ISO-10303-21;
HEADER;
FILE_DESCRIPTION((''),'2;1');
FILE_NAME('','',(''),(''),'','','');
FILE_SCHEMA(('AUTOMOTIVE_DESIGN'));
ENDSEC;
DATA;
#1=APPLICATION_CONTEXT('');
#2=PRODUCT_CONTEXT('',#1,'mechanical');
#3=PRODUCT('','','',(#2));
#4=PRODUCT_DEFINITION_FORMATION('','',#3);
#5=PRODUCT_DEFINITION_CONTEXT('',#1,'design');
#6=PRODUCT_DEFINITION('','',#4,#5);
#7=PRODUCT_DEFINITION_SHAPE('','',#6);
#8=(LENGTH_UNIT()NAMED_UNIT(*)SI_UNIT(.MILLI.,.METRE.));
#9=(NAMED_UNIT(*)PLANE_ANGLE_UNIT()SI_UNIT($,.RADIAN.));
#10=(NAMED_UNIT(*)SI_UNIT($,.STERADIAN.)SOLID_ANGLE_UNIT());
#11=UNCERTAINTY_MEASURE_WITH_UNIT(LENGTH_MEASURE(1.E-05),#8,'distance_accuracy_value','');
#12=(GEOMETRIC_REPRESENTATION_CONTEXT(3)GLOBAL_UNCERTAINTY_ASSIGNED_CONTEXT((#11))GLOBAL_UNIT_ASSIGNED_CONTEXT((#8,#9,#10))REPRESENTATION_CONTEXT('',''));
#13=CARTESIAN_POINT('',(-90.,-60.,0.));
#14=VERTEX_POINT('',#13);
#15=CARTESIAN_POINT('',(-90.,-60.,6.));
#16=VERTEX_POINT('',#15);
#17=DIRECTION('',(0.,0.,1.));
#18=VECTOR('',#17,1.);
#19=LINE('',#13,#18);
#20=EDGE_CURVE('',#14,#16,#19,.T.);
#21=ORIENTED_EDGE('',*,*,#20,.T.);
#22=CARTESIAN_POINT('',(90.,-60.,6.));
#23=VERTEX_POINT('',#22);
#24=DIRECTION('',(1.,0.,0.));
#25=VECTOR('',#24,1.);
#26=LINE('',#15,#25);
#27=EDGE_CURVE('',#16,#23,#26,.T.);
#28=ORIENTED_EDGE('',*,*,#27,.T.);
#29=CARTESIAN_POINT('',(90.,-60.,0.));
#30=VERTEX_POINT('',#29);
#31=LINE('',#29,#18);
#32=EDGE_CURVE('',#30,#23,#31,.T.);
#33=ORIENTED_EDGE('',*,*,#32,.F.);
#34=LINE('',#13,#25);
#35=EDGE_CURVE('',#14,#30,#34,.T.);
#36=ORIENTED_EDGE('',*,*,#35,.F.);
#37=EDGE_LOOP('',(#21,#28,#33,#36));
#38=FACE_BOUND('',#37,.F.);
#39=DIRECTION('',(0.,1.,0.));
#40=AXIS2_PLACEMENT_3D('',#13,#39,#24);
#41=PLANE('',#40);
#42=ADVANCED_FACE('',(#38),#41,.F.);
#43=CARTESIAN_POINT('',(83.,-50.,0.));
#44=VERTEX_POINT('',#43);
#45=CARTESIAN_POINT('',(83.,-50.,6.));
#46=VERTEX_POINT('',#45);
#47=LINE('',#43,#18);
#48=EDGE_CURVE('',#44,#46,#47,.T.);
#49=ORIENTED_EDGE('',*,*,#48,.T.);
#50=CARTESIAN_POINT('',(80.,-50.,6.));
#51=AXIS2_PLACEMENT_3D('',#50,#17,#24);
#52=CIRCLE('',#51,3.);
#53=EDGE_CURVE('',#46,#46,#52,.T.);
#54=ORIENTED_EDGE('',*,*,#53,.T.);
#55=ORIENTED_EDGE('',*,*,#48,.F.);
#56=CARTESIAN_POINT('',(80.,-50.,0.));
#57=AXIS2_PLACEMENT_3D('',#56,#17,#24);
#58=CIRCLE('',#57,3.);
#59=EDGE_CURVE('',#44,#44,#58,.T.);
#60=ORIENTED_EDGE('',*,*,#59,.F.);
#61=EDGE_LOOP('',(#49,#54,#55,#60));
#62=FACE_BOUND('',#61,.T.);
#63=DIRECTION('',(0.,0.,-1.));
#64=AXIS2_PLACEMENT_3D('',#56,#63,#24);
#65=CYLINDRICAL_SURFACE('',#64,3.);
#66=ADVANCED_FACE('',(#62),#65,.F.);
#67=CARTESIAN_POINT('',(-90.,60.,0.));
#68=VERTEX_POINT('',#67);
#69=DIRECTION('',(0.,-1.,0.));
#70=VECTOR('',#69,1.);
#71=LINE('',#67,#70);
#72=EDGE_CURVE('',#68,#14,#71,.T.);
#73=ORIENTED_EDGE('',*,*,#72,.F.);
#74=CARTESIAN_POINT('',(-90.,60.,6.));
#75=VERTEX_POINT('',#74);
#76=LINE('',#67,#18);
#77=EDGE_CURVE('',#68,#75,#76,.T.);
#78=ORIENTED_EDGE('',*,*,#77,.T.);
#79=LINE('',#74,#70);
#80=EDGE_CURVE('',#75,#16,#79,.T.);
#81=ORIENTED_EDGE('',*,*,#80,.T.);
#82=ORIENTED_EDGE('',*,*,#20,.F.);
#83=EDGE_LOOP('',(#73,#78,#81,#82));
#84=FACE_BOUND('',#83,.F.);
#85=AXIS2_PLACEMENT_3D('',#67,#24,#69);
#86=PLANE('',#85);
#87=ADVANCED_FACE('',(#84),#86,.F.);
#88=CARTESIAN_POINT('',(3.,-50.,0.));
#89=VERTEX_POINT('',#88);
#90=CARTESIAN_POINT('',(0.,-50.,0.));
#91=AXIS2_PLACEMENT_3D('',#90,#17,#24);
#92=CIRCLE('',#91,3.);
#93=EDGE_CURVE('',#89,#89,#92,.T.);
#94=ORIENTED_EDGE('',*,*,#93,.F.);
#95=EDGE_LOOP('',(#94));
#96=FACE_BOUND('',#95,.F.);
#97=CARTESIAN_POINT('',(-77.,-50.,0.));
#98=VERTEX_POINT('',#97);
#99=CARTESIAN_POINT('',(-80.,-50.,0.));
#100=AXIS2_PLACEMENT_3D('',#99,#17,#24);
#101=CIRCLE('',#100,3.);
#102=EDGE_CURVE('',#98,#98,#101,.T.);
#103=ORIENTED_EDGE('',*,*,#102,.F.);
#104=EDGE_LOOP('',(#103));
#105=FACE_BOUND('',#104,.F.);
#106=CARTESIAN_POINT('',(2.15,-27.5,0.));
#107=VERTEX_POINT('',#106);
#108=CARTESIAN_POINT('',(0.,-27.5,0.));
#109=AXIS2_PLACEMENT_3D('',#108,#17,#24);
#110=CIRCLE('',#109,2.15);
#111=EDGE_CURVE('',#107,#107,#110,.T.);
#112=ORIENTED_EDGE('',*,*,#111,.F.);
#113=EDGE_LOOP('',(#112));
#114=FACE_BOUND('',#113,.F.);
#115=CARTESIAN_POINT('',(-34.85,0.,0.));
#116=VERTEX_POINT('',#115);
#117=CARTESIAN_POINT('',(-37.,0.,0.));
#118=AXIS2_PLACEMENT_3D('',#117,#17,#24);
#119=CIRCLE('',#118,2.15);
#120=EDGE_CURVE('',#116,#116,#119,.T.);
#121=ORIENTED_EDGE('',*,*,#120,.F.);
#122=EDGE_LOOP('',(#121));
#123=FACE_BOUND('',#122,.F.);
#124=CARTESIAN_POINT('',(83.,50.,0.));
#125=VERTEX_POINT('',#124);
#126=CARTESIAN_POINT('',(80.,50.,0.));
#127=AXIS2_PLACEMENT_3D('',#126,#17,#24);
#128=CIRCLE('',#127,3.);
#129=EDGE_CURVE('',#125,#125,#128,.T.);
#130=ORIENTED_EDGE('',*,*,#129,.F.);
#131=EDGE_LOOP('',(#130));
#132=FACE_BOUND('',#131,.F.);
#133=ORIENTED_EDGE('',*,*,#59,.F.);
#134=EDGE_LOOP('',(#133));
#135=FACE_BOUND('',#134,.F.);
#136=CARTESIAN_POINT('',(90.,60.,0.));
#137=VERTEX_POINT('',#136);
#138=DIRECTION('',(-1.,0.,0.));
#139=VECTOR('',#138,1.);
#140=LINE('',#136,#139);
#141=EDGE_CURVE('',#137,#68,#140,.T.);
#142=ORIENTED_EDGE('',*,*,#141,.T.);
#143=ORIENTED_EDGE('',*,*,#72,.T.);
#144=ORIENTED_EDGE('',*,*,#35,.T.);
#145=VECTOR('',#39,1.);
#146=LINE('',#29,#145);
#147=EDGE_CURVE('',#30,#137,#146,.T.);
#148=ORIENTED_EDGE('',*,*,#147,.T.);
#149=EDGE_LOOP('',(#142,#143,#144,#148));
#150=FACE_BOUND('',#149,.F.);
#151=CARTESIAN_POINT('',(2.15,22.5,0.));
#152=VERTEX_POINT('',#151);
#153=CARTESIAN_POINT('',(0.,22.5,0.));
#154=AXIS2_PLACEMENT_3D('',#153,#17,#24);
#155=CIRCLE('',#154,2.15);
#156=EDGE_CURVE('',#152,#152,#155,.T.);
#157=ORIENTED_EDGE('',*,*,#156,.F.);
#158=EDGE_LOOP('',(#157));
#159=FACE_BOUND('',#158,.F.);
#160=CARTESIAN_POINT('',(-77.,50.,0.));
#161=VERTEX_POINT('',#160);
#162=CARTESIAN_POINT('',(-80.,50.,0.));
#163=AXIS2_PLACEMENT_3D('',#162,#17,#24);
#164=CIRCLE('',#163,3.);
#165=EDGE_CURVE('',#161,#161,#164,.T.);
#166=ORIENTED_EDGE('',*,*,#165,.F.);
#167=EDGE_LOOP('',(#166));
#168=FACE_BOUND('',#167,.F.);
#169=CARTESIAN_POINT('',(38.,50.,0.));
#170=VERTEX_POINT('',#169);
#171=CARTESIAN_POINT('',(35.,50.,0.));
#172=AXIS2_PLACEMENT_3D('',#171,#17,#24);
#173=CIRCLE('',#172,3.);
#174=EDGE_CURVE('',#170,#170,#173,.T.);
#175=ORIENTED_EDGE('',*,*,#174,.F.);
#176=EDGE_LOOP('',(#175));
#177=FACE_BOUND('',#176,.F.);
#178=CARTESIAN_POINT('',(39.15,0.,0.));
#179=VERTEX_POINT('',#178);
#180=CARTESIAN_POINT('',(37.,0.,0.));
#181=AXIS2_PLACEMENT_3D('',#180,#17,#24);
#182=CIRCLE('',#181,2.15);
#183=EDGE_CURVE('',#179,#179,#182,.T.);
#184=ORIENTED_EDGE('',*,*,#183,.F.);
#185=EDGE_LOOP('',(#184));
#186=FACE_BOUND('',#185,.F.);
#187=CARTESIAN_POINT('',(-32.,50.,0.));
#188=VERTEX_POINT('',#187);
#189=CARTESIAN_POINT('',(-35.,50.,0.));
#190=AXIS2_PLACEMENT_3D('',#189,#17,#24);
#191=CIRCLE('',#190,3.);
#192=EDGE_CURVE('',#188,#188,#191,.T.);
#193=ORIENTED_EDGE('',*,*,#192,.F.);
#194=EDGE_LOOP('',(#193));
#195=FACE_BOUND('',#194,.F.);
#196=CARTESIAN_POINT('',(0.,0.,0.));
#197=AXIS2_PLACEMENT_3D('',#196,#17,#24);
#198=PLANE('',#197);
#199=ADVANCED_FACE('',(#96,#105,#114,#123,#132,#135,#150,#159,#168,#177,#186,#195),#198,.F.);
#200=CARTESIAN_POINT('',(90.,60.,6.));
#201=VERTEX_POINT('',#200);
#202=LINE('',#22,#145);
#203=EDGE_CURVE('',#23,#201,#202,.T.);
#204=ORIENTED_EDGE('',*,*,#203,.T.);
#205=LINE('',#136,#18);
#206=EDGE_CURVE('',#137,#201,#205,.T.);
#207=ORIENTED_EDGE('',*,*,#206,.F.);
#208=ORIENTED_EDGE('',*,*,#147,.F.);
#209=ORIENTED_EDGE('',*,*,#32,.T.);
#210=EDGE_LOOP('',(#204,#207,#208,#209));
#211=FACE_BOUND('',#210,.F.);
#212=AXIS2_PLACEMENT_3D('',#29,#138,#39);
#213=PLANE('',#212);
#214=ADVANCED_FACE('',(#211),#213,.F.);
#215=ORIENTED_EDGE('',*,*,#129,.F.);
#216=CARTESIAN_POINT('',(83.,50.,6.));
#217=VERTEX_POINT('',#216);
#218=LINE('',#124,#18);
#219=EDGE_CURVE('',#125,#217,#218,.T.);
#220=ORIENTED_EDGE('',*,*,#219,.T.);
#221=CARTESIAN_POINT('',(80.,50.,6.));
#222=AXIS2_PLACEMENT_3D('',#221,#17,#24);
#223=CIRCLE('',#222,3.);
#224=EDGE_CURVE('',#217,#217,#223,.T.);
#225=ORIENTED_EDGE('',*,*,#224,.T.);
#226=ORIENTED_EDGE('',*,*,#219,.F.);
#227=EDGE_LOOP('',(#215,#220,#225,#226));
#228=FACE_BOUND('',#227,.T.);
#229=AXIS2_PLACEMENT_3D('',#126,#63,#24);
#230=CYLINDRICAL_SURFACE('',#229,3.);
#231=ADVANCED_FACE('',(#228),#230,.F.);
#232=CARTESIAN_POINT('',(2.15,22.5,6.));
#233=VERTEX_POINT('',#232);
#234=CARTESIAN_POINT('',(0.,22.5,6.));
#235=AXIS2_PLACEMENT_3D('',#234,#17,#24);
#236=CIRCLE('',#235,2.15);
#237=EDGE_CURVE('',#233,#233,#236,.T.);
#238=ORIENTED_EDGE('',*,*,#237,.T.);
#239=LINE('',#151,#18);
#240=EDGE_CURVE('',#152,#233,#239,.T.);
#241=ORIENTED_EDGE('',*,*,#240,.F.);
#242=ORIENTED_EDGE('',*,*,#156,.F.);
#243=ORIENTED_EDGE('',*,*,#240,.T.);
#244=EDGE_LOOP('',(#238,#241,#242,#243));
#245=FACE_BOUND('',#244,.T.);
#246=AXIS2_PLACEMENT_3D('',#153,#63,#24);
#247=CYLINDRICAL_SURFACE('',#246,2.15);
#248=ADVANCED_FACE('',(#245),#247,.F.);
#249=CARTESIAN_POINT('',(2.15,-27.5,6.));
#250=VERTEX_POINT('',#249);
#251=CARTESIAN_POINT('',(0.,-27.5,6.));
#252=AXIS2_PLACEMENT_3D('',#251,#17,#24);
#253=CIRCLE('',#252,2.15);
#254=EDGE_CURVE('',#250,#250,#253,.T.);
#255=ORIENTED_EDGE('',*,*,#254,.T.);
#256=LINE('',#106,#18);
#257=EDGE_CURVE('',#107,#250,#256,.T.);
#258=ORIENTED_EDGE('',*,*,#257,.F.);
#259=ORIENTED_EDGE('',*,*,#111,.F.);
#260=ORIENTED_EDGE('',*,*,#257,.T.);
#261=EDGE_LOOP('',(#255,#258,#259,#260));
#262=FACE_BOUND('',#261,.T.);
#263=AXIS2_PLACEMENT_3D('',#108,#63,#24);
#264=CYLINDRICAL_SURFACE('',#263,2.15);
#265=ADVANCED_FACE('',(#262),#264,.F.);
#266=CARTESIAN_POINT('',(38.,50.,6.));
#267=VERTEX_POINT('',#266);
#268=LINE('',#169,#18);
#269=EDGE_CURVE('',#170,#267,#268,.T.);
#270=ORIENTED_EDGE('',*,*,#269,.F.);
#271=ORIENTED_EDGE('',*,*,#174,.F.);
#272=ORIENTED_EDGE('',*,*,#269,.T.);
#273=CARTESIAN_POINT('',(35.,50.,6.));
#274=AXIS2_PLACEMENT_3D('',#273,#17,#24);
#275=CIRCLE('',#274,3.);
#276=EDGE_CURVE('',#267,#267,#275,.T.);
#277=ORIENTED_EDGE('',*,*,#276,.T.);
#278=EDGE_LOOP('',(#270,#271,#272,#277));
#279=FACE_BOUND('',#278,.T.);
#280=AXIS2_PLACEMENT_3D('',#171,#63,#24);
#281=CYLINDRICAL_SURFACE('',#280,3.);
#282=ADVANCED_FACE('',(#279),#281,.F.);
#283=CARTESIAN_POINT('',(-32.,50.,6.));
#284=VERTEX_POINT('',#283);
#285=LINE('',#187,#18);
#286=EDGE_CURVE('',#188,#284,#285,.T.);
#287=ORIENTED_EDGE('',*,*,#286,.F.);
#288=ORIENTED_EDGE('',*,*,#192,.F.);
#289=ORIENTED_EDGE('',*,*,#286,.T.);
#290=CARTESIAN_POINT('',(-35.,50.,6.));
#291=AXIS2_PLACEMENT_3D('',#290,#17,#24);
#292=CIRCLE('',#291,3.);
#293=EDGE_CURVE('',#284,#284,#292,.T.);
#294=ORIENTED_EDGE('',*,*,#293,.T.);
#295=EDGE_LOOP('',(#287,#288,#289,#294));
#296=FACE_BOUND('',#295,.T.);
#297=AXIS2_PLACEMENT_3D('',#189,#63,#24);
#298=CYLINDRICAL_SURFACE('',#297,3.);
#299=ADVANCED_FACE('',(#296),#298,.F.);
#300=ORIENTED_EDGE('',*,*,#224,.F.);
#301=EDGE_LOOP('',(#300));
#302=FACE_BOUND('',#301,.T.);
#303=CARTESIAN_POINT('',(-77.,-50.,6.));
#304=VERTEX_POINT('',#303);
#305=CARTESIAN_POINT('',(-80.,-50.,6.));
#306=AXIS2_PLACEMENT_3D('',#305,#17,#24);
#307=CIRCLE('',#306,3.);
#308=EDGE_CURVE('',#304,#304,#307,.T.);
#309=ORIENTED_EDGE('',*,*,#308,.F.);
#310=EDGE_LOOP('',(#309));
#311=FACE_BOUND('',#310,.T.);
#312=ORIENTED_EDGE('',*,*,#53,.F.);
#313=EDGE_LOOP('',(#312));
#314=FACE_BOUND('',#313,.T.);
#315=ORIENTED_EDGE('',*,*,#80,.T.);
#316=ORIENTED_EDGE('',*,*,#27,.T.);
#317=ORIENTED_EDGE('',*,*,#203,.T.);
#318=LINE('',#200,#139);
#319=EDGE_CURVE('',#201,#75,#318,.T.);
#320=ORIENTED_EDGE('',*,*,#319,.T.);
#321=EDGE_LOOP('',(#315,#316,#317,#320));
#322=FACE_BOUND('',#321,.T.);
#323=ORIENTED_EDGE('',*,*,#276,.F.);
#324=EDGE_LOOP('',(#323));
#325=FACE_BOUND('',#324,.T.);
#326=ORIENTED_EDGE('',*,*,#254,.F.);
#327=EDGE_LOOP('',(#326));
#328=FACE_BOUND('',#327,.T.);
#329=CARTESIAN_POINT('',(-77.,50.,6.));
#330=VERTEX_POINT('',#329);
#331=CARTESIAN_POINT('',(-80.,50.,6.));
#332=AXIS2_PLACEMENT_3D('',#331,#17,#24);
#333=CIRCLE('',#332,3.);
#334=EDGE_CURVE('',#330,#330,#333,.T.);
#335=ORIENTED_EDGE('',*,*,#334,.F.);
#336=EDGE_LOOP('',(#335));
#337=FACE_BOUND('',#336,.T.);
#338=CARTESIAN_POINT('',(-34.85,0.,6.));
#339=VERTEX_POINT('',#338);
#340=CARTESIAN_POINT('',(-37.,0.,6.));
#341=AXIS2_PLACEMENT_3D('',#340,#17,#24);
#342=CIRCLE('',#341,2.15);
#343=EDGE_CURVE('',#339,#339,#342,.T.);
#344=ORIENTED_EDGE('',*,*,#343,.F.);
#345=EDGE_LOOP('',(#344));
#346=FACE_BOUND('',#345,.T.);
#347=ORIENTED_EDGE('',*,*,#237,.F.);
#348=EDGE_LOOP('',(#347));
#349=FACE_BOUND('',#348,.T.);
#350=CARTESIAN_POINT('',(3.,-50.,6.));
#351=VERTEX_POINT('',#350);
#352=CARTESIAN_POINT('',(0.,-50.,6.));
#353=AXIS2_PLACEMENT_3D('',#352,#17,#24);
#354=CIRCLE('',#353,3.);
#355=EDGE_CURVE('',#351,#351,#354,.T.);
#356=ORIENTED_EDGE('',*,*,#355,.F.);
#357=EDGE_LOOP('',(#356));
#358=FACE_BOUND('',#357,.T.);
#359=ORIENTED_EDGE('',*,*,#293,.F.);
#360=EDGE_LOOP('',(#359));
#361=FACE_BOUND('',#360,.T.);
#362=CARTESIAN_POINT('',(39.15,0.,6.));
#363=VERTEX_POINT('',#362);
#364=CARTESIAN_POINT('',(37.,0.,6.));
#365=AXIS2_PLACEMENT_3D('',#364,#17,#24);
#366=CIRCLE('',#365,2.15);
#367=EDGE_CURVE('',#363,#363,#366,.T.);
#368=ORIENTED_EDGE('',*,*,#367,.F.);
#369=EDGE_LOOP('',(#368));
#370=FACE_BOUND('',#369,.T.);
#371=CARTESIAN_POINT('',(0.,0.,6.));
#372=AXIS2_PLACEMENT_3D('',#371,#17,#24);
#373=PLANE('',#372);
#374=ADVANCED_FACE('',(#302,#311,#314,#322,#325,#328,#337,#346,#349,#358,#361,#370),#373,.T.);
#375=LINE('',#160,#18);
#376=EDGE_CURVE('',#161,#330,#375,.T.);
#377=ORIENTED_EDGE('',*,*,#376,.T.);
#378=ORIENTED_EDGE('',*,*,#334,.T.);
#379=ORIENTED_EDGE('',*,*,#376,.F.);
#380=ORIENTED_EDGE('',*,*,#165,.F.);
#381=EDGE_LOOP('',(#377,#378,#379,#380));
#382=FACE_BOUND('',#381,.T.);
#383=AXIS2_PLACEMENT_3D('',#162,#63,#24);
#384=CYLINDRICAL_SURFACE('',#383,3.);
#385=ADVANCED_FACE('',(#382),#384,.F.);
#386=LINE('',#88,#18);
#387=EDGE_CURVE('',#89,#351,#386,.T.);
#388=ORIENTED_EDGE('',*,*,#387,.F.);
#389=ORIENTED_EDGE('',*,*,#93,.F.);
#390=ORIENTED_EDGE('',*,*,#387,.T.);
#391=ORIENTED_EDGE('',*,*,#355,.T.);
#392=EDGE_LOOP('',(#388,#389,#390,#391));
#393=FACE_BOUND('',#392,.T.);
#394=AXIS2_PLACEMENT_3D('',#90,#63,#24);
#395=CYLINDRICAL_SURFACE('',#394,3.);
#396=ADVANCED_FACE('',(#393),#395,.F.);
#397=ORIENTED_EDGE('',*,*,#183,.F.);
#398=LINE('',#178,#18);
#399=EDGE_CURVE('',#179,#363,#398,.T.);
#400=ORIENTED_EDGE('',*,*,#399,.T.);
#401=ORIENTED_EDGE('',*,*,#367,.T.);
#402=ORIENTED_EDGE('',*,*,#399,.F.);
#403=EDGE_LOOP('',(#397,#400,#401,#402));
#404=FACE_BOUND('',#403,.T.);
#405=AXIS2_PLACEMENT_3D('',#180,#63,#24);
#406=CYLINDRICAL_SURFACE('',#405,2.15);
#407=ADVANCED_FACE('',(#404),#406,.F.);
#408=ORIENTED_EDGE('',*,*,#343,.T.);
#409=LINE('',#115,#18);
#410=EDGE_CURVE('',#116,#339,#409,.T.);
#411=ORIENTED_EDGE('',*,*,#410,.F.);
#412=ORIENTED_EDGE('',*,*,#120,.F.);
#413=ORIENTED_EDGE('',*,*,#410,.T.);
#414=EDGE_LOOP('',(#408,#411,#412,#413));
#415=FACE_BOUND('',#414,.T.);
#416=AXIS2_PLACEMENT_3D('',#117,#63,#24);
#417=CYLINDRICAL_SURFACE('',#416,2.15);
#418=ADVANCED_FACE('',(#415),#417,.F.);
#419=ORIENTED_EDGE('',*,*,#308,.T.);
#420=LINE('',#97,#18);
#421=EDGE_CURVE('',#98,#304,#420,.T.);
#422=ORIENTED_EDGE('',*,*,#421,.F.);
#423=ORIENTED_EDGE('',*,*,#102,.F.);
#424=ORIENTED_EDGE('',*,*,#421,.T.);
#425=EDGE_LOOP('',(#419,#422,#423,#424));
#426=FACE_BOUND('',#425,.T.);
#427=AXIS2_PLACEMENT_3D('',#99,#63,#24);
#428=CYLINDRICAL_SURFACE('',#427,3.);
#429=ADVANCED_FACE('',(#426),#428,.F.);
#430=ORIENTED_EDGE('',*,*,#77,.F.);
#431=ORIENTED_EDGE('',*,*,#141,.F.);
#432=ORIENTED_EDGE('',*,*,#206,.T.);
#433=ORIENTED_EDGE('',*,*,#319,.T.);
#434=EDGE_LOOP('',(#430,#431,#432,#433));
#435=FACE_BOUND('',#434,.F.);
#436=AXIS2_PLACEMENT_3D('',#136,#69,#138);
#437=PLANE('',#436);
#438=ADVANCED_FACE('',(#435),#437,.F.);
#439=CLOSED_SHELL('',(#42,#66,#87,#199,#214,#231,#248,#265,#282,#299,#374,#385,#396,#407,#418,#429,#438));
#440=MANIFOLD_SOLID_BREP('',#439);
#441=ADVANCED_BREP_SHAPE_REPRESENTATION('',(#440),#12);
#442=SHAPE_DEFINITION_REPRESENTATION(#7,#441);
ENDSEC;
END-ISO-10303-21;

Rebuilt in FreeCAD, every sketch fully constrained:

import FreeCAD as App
import Part
import Sketcher
from FreeCAD import Vector
Q = App.Units.Quantity


def add_polygon(sketch, points):
    """Adds a closed chain of lines whose ends are joined by coincident constraints."""
    first, n = sketch.GeometryCount, len(points)
    for a, b in zip(points, points[1:] + points[:1]):
        sketch.addGeometry(Part.LineSegment(App.Vector(*a, 0), App.Vector(*b, 0)), False)
    for i in range(n):
        sketch.addConstraint(Sketcher.Constraint("Coincident", first + i, 2, first + (i + 1) % n, 1))

doc = App.newDocument("Part")
body = doc.addObject("PartDesign::Body", "Body")

# Sketch on XY plane
sketch1 = body.newObject("Sketcher::SketchObject", "Sketch")
sketch1.AttachmentSupport = (doc.getObject("XY_Plane"), [""])
sketch1.MapMode = "FlatFace"
add_polygon(sketch1, [(90, -60), (90, 60), (-90, 60), (-90, -60)])  # lines 0-3
sketch1.addGeometry(Part.Circle(Vector(-80, -50, 0), Vector(0, 0, 1), 3), False)  # 4
sketch1.addGeometry(Part.Circle(Vector(0, -50, 0), Vector(0, 0, 1), 3), False)  # 5
sketch1.addGeometry(Part.Circle(Vector(80, -50, 0), Vector(0, 0, 1), 3), False)  # 6
sketch1.addGeometry(Part.Circle(Vector(0, -27.5, 0), Vector(0, 0, 1), 2.15), False)  # 7
sketch1.addGeometry(Part.Circle(Vector(-37, 0, 0), Vector(0, 0, 1), 2.15), False)  # 8
sketch1.addGeometry(Part.Circle(Vector(-80, 50, 0), Vector(0, 0, 1), 3), False)  # 9
sketch1.addGeometry(Part.Circle(Vector(-35, 50, 0), Vector(0, 0, 1), 3), False)  # 10
sketch1.addGeometry(Part.Circle(Vector(37, 0, 0), Vector(0, 0, 1), 2.15), False)  # 11
sketch1.addGeometry(Part.Circle(Vector(0, 22.5, 0), Vector(0, 0, 1), 2.15), False)  # 12
sketch1.addGeometry(Part.Circle(Vector(35, 50, 0), Vector(0, 0, 1), 3), False)  # 13
sketch1.addGeometry(Part.Circle(Vector(80, 50, 0), Vector(0, 0, 1), 3), False)  # 14
sketch1.addConstraint([
    Sketcher.Constraint("Vertical", 0),
    Sketcher.Constraint("Horizontal", 1),
    Sketcher.Constraint("Vertical", 2),
    Sketcher.Constraint("Horizontal", 3),
    Sketcher.Constraint("Equal", 4, 5),
    Sketcher.Constraint("Equal", 5, 6),
    Sketcher.Constraint("Equal", 7, 8),
    Sketcher.Constraint("Equal", 6, 9),
    Sketcher.Constraint("Equal", 9, 10),
    Sketcher.Constraint("Equal", 8, 11),
    Sketcher.Constraint("Equal", 11, 12),
    Sketcher.Constraint("Equal", 10, 13),
    Sketcher.Constraint("Equal", 13, 14),
    Sketcher.Constraint("Symmetric", 6, 3, 9, 3, -1, 1),
    Sketcher.Constraint("Symmetric", 8, 3, 11, 3, -1, 1),
    Sketcher.Constraint("Symmetric", 4, 3, 14, 3, -1, 1),
    Sketcher.Constraint("Symmetric", 0, 2, 2, 2, -1, 1),
    Sketcher.Constraint("Symmetric", 4, 3, 6, 3, -2),
    Sketcher.Constraint("Symmetric", 10, 3, 13, 3, -2),
    Sketcher.Constraint("PointOnObject", 5, 3, -2),
    Sketcher.Constraint("PointOnObject", 7, 3, -2),
    Sketcher.Constraint("PointOnObject", 8, 3, -1),
    Sketcher.Constraint("PointOnObject", 12, 3, -2),
    Sketcher.Constraint("Horizontal", 4, 3, 5, 3),
    Sketcher.Constraint("Horizontal", 9, 3, 10, 3),
    Sketcher.Constraint("Diameter", 4, Q("6 mm")),
    Sketcher.Constraint("Diameter", 7, Q("4.3 mm")),
    Sketcher.Constraint("DistanceX", 4, 3, -1, 1, Q("80 mm")),
    Sketcher.Constraint("DistanceY", 4, 3, -1, 1, Q("50 mm")),
    Sketcher.Constraint("DistanceX", 10, 3, -1, 1, Q("35 mm")),
    Sketcher.Constraint("DistanceX", 8, 3, 11, 3, Q("74 mm")),
    Sketcher.Constraint("DistanceY", 7, 3, 12, 3, Q("50 mm")),
    Sketcher.Constraint("DistanceX", 14, 3, 0, 2, Q("10 mm")),
    Sketcher.Constraint("DistanceY", 14, 3, 0, 2, Q("10 mm")),
    Sketcher.Constraint("DistanceY", 7, 3, -1, 1, Q("27.5 mm")),
])
pad1 = body.newObject("PartDesign::Pad", "Pad")
pad1.Profile = sketch1
pad1.Length = 6

doc.recompute()
